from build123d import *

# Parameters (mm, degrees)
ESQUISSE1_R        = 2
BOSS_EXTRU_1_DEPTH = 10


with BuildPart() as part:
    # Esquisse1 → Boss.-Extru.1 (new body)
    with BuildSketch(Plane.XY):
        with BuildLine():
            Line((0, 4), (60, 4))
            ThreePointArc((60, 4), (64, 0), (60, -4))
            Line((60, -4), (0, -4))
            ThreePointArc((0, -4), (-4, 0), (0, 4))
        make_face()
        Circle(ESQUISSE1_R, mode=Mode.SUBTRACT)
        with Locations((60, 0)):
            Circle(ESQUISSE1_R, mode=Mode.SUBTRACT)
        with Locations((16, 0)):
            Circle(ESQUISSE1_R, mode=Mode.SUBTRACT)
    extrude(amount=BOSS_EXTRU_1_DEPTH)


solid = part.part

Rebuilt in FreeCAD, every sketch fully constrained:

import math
import FreeCAD as App
import Part
import Sketcher
Q = App.Units.Quantity

doc = App.newDocument("Part")
body = doc.addObject("PartDesign::Body", "Body")

sketch1 = body.newObject("Sketcher::SketchObject", "Sketch")
sketch1.AttachmentSupport = (doc.getObject("XY_Plane"), [""])
sketch1.MapMode = "FlatFace"
sketch1.addGeometry(Part.LineSegment(App.Vector(60, 4, 0), App.Vector(0, 4, 0)), False)
sketch1.addGeometry(Part.ArcOfCircle(Part.Circle(App.Vector(0, 0, 0), App.Vector(0, 0, 1), 4), math.radians(90), math.radians(270)), False)
sketch1.addGeometry(Part.LineSegment(App.Vector(0, -4, 0), App.Vector(60, -4, 0)), False)
sketch1.addGeometry(Part.ArcOfCircle(Part.Circle(App.Vector(60, 0, 0), App.Vector(0, 0, 1), 4), math.radians(-90), math.radians(90)), False)
sketch1.addGeometry(Part.Circle(App.Vector(60, 0, 0), App.Vector(0, 0, 1), 2), False)
sketch1.addGeometry(Part.Circle(App.Vector(16, 0, 0), App.Vector(0, 0, 1), 2), False)
sketch1.addGeometry(Part.Circle(App.Vector(0, 0, 0), App.Vector(0, 0, 1), 2), False)
sketch1.addConstraint(Sketcher.Constraint("Tangent", 0, 2, 1, 1))
sketch1.addConstraint(Sketcher.Constraint("Tangent", 1, 2, 2, 1))
sketch1.addConstraint(Sketcher.Constraint("Tangent", 2, 2, 3, 1))
sketch1.addConstraint(Sketcher.Constraint("Tangent", 3, 2, 0, 1))
sketch1.addConstraint(Sketcher.Constraint("Horizontal", 0))
sketch1.addConstraint(Sketcher.Constraint("Horizontal", 2))
sketch1.addConstraint(Sketcher.Constraint("Coincident", 1, 3, -1, 1))
sketch1.addConstraint(Sketcher.Constraint("Coincident", 6, 3, -1, 1))
sketch1.addConstraint(Sketcher.Constraint("Coincident", 4, 3, 3, 3))
sketch1.addConstraint(Sketcher.Constraint("Equal", 4, 5))
sketch1.addConstraint(Sketcher.Constraint("Equal", 5, 6))
sketch1.addConstraint(Sketcher.Constraint("PointOnObject", 5, 3, -1))
sketch1.addConstraint(Sketcher.Constraint("Diameter", 4, Q("4 mm")))
sketch1.addConstraint(Sketcher.Constraint("Radius", 1, Q("4 mm")))
sketch1.addConstraint(Sketcher.Constraint("DistanceX", 0, 2, 0, 1, Q("60 mm")))
sketch1.addConstraint(Sketcher.Constraint("DistanceX", -1, 1, 5, 3, Q("16 mm")))
pad1 = body.newObject("PartDesign::Pad", "Pad")
pad1.Profile = sketch1
pad1.Length = 10

doc.recompute()
